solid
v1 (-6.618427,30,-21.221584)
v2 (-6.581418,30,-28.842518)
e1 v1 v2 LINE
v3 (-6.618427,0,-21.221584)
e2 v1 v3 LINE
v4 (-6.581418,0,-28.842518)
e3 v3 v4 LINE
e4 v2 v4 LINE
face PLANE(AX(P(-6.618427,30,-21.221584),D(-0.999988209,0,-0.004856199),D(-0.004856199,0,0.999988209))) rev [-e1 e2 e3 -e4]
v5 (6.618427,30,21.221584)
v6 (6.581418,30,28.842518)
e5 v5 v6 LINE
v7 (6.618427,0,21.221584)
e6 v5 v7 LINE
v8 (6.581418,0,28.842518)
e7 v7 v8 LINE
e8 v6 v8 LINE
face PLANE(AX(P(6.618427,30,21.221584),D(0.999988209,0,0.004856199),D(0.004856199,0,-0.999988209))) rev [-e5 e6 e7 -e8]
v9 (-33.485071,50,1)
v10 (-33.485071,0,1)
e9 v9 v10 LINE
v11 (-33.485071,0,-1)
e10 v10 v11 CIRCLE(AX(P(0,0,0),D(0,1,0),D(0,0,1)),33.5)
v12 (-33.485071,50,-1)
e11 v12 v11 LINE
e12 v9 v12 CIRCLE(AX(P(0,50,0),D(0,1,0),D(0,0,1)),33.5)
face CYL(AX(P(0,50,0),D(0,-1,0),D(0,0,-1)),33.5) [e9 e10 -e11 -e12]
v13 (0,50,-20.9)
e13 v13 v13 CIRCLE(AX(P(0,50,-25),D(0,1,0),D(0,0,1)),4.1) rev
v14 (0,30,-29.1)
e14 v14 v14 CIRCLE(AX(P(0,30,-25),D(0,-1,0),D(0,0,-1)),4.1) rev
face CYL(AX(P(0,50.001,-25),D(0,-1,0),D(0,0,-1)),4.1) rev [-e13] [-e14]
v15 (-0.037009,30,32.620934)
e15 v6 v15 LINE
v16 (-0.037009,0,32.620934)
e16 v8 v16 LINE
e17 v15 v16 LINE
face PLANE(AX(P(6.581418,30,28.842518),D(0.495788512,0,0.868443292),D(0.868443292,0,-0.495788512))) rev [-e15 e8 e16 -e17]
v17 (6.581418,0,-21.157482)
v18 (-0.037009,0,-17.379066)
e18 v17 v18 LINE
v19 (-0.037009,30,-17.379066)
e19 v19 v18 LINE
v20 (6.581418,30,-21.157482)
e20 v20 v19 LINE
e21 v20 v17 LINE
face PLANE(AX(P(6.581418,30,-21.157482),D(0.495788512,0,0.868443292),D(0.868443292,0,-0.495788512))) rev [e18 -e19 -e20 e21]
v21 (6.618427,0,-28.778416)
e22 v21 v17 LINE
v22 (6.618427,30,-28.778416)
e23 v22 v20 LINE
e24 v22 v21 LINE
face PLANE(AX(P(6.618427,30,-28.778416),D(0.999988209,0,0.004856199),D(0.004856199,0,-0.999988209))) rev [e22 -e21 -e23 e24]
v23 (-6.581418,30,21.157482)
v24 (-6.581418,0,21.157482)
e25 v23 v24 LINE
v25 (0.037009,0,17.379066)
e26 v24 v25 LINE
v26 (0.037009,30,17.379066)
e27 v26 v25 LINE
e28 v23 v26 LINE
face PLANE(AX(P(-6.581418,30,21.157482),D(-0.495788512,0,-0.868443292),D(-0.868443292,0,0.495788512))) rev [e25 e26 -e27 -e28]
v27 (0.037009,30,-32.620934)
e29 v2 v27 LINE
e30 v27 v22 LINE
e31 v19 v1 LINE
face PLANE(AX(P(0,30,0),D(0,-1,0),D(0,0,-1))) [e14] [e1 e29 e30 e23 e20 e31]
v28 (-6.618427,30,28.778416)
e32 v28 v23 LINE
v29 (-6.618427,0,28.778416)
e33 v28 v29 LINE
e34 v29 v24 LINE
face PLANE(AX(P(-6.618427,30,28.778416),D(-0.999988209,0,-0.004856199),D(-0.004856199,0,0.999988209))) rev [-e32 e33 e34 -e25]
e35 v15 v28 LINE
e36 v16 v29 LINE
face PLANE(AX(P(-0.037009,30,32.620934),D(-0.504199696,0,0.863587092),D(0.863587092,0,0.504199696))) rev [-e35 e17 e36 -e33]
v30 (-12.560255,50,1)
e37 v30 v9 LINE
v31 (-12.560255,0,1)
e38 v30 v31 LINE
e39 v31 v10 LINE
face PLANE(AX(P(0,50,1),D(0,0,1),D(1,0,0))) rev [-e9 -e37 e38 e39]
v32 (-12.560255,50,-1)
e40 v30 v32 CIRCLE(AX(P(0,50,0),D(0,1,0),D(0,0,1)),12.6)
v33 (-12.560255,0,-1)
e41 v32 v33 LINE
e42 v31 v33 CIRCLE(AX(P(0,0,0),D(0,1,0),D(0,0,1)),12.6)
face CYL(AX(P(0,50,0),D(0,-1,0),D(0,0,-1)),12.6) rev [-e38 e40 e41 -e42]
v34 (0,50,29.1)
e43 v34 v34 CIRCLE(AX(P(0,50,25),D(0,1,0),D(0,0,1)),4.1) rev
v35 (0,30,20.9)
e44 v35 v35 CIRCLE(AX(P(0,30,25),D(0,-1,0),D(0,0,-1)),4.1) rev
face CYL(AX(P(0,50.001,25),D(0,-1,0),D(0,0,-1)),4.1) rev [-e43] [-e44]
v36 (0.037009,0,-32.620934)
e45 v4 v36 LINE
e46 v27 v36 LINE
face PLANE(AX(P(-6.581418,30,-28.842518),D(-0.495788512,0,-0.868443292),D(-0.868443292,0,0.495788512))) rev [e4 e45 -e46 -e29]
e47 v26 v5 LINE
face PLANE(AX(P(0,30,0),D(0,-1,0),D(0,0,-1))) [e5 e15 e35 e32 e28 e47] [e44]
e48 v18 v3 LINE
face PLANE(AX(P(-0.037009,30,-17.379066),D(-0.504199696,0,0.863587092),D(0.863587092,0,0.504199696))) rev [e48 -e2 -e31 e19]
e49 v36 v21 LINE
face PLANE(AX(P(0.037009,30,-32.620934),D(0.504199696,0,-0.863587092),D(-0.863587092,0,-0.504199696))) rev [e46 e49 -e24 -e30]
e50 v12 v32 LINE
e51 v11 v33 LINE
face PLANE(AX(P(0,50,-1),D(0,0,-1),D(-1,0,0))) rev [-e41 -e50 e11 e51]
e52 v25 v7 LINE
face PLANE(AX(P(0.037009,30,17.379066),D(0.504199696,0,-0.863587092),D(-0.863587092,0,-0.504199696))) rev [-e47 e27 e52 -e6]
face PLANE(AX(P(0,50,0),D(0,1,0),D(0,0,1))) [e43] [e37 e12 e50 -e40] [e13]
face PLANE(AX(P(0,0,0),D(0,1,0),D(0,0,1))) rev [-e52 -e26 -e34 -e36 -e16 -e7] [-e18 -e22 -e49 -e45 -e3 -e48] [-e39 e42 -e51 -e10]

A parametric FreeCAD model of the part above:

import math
import FreeCAD as App
import Part
import Sketcher
Q = App.Units.Quantity

doc = App.newDocument("Part")
body = doc.addObject("PartDesign::Body", "Body")

# Sketch on XZ plane
sketch1 = body.newObject("Sketcher::SketchObject", "Sketch")
sketch1.AttachmentSupport = (doc.getObject("XZ_Plane"), [""])
sketch1.MapMode = "FlatFace"
sketch1.addGeometry(Part.ArcOfCircle(Part.Circle(App.Vector(0, 0, 0), App.Vector(0, 0, 1), 12.6), math.radians(0), math.radians(175.447929)), False)
sketch1.addGeometry(Part.LineSegment(App.Vector(-12.560255, 1, 0), App.Vector(-33.485071, 1, 0)), False)
sketch1.addGeometry(Part.ArcOfCircle(Part.Circle(App.Vector(0, 0, 0), App.Vector(0, 0, 1), 33.5), math.radians(0), math.radians(178.289424)), False)
sketch1.addGeometry(Part.ArcOfCircle(Part.Circle(App.Vector(0, 0, 0), App.Vector(0, 0, 1), 33.5), math.radians(-178.289424), math.radians(0)), False)
sketch1.addGeometry(Part.LineSegment(App.Vector(-33.485071, -1, 0), App.Vector(-12.560255, -1, 0)), False)
sketch1.addGeometry(Part.ArcOfCircle(Part.Circle(App.Vector(0, 0, 0), App.Vector(0, 0, 1), 12.6), math.radians(-175.447929), math.radians(0)), False)
sketch1.addConstraint(Sketcher.Constraint("Coincident", 0, 2, 1, 1))
sketch1.addConstraint(Sketcher.Constraint("Coincident", 1, 2, 2, 2))
sketch1.addConstraint(Sketcher.Constraint("Tangent", 2, 1, 3, 2))
sketch1.addConstraint(Sketcher.Constraint("Coincident", 3, 1, 4, 1))
sketch1.addConstraint(Sketcher.Constraint("Coincident", 4, 2, 5, 1))
sketch1.addConstraint(Sketcher.Constraint("Tangent", 5, 2, 0, 1))
sketch1.addConstraint(Sketcher.Constraint("Horizontal", 1))
sketch1.addConstraint(Sketcher.Constraint("Horizontal", 4))
sketch1.addConstraint(Sketcher.Constraint("Coincident", 0, 3, -1, 1))
sketch1.addConstraint(Sketcher.Constraint("Coincident", 2, 3, -1, 1))
sketch1.addConstraint(Sketcher.Constraint("Equal", 2, 3))
sketch1.addConstraint(Sketcher.Constraint("Equal", 0, 5))
sketch1.addConstraint(Sketcher.Constraint("PointOnObject", 2, 1, -1))
sketch1.addConstraint(Sketcher.Constraint("PointOnObject", 5, 2, -1))
sketch1.addConstraint(Sketcher.Constraint("Vertical", 1, 2, 3, 1))
sketch1.addConstraint(Sketcher.Constraint("Radius", 0, Q("12.6 mm")))
sketch1.addConstraint(Sketcher.Constraint("Radius", 2, Q("33.5 mm")))
sketch1.addConstraint(Sketcher.Constraint("DistanceY", -1, 1, 0, 2, Q("1 mm")))
pad1 = body.newObject("PartDesign::Pad", "Pad")
pad1.Profile = sketch1
pad1.Length = 50
pad1.Reversed = True

# Sketch on XZ plane
sketch2 = body.newObject("Sketcher::SketchObject", "Sketch001")
sketch2.AttachmentSupport = (doc.getObject("XZ_Plane"), [""])
sketch2.MapMode = "FlatFace"
sketch2.addGeometry(Part.Circle(App.Vector(0, 25, 0), App.Vector(0, 0, 1), 4.1), False)
sketch2.addConstraint(Sketcher.Constraint("PointOnObject", 0, 3, -2))
sketch2.addConstraint(Sketcher.Constraint("Diameter", 0, Q("8.2 mm")))
sketch2.addConstraint(Sketcher.Constraint("DistanceY", -1, 1, 0, 3, Q("25 mm")))
pocket1 = body.newObject("PartDesign::Pocket", "Pocket")
pocket1.Profile = sketch2
pocket1.Type = "UpToFirst"

# Sketch on XZ plane
sketch3 = body.newObject("Sketcher::SketchObject", "Sketch002")
sketch3.AttachmentSupport = (doc.getObject("XZ_Plane"), [""])
sketch3.MapMode = "FlatFace"
sketch3.addGeometry(Part.Circle(App.Vector(0, -25, 0), App.Vector(0, 0, 1), 4.1), False)
sketch3.addConstraint(Sketcher.Constraint("PointOnObject", 0, 3, -2))
sketch3.addConstraint(Sketcher.Constraint("Diameter", 0, Q("8.2 mm")))
sketch3.addConstraint(Sketcher.Constraint("DistanceY", 0, 3, -1, 1, Q("25 mm")))
pocket2 = body.newObject("PartDesign::Pocket", "Pocket001")
pocket2.Profile = sketch3
pocket2.Type = "UpToFirst"

# Sketch on XZ plane
sketch4 = body.newObject("Sketcher::SketchObject", "Sketch003")
sketch4.AttachmentSupport = (doc.getObject("XZ_Plane"), [""])
sketch4.MapMode = "FlatFace"
sketch4.addGeometry(Part.LineSegment(App.Vector(6.618427, 21.221584, 0), App.Vector(6.581418, 28.842518, 0)), False)
sketch4.addGeometry(Part.LineSegment(App.Vector(6.581418, 28.842518, 0), App.Vector(-0.037009, 32.620934, 0)), False)
sketch4.addGeometry(Part.LineSegment(App.Vector(-0.037009, 32.620934, 0), App.Vector(-6.618427, 28.778416, 0)), False)
sketch4.addGeometry(Part.LineSegment(App.Vector(-6.618427, 28.778416, 0), App.Vector(-6.581418, 21.157482, 0)), False)
sketch4.addGeometry(Part.LineSegment(App.Vector(-6.581418, 21.157482, 0), App.Vector(0.037009, 17.379066, 0)), False)
sketch4.addGeometry(Part.LineSegment(App.Vector(0.037009, 17.379066, 0), App.Vector(6.618427, 21.221584, 0)), False)
sketch4.addGeometry(Part.LineSegment(App.Vector(6.618427, -28.778416, 0), App.Vector(6.581418, -21.157482, 0)), False)
sketch4.addGeometry(Part.LineSegment(App.Vector(6.581418, -21.157482, 0), App.Vector(-0.037009, -17.379066, 0)), False)
sketch4.addGeometry(Part.LineSegment(App.Vector(-0.037009, -17.379066, 0), App.Vector(-6.618427, -21.221584, 0)), False)
sketch4.addGeometry(Part.LineSegment(App.Vector(-6.618427, -21.221584, 0), App.Vector(-6.581418, -28.842518, 0)), False)
sketch4.addGeometry(Part.LineSegment(App.Vector(-6.581418, -28.842518, 0), App.Vector(0.037009, -32.620934, 0)), False)
sketch4.addGeometry(Part.LineSegment(App.Vector(0.037009, -32.620934, 0), App.Vector(6.618427, -28.778416, 0)), False)
sketch4.addConstraint(Sketcher.Constraint("Coincident", 0, 2, 1, 1))
sketch4.addConstraint(Sketcher.Constraint("Coincident", 1, 2, 2, 1))
sketch4.addConstraint(Sketcher.Constraint("Coincident", 2, 2, 3, 1))
sketch4.addConstraint(Sketcher.Constraint("Coincident", 3, 2, 4, 1))
sketch4.addConstraint(Sketcher.Constraint("Coincident", 4, 2, 5, 1))
sketch4.addConstraint(Sketcher.Constraint("Coincident", 5, 2, 0, 1))
sketch4.addConstraint(Sketcher.Constraint("Coincident", 6, 2, 7, 1))
sketch4.addConstraint(Sketcher.Constraint("Coincident", 7, 2, 8, 1))
sketch4.addConstraint(Sketcher.Constraint("Coincident", 8, 2, 9, 1))
sketch4.addConstraint(Sketcher.Constraint("Coincident", 9, 2, 10, 1))
sketch4.addConstraint(Sketcher.Constraint("Coincident", 10, 2, 11, 1))
sketch4.addConstraint(Sketcher.Constraint("Coincident", 11, 2, 6, 1))
sketch4.addConstraint(Sketcher.Constraint("DistanceY", 6, 2, 0, 2, Q("50 mm")))
sketch4.addConstraint(Sketcher.Constraint("DistanceY", 9, 2, 3, 2, Q("50 mm")))
sketch4.addConstraint(Sketcher.Constraint("DistanceY", 10, 2, 4, 2, Q("50 mm")))
sketch4.addConstraint(Sketcher.Constraint("DistanceY", 2, 2, 0, 2, Q("0.064102 mm")))
sketch4.addConstraint(Sketcher.Constraint("DistanceY", 3, 2, 5, 2, Q("0.064102 mm")))
sketch4.addConstraint(Sketcher.Constraint("DistanceY", 8, 2, 6, 2, Q("0.064102 mm")))
sketch4.addConstraint(Sketcher.Constraint("DistanceY", 9, 2, 11, 2, Q("0.064102 mm")))
sketch4.addConstraint(Sketcher.Constraint("DistanceX", 1, 2, -1, 1, Q("0.037009 mm")))
sketch4.addConstraint(Sketcher.Constraint("DistanceX", -1, 1, 4, 2, Q("0.037009 mm")))
sketch4.addConstraint(Sketcher.Constraint("DistanceX", 7, 2, -1, 1, Q("0.037009 mm")))
sketch4.addConstraint(Sketcher.Constraint("DistanceX", -1, 1, 10, 2, Q("0.037009 mm")))
sketch4.addConstraint(Sketcher.Constraint("DistanceX", 2, 2, 3, 2, Q("0.037009 mm")))
sketch4.addConstraint(Sketcher.Constraint("DistanceX", 3, 2, 1, 2, Q("6.544408 mm")))
sketch4.addConstraint(Sketcher.Constraint("DistanceY", 3, 2, 1, 2, Q("11.463451 mm")))
sketch4.addConstraint(Sketcher.Constraint("DistanceX", 4, 2, 0, 2, Q("6.544408 mm")))
sketch4.addConstraint(Sketcher.Constraint("DistanceY", 4, 2, 0, 2, Q("11.463451 mm")))
sketch4.addConstraint(Sketcher.Constraint("DistanceX", 0, 2, 5, 2, Q("0.037009 mm")))
sketch4.addConstraint(Sketcher.Constraint("DistanceY", 5, 2, 2, 2, Q("7.556832 mm")))
sketch4.addConstraint(Sketcher.Constraint("DistanceX", 4, 2, 6, 2, Q("6.544408 mm")))
sketch4.addConstraint(Sketcher.Constraint("DistanceY", 7, 2, 3, 2, Q("38.536549 mm")))
sketch4.addConstraint(Sketcher.Constraint("DistanceX", 8, 2, 3, 2, Q("0.037009 mm")))
sketch4.addConstraint(Sketcher.Constraint("DistanceX", 8, 2, 9, 2, Q("0.037009 mm")))
sketch4.addConstraint(Sketcher.Constraint("DistanceX", 6, 2, 11, 2, Q("0.037009 mm")))
sketch4.addConstraint(Sketcher.Constraint("DistanceY", -1, 1, 0, 2, Q("28.842518 mm")))
pocket3 = body.newObject("PartDesign::Pocket", "Pocket002")
pocket3.Profile = sketch4
pocket3.Length = 30

doc.recompute()
